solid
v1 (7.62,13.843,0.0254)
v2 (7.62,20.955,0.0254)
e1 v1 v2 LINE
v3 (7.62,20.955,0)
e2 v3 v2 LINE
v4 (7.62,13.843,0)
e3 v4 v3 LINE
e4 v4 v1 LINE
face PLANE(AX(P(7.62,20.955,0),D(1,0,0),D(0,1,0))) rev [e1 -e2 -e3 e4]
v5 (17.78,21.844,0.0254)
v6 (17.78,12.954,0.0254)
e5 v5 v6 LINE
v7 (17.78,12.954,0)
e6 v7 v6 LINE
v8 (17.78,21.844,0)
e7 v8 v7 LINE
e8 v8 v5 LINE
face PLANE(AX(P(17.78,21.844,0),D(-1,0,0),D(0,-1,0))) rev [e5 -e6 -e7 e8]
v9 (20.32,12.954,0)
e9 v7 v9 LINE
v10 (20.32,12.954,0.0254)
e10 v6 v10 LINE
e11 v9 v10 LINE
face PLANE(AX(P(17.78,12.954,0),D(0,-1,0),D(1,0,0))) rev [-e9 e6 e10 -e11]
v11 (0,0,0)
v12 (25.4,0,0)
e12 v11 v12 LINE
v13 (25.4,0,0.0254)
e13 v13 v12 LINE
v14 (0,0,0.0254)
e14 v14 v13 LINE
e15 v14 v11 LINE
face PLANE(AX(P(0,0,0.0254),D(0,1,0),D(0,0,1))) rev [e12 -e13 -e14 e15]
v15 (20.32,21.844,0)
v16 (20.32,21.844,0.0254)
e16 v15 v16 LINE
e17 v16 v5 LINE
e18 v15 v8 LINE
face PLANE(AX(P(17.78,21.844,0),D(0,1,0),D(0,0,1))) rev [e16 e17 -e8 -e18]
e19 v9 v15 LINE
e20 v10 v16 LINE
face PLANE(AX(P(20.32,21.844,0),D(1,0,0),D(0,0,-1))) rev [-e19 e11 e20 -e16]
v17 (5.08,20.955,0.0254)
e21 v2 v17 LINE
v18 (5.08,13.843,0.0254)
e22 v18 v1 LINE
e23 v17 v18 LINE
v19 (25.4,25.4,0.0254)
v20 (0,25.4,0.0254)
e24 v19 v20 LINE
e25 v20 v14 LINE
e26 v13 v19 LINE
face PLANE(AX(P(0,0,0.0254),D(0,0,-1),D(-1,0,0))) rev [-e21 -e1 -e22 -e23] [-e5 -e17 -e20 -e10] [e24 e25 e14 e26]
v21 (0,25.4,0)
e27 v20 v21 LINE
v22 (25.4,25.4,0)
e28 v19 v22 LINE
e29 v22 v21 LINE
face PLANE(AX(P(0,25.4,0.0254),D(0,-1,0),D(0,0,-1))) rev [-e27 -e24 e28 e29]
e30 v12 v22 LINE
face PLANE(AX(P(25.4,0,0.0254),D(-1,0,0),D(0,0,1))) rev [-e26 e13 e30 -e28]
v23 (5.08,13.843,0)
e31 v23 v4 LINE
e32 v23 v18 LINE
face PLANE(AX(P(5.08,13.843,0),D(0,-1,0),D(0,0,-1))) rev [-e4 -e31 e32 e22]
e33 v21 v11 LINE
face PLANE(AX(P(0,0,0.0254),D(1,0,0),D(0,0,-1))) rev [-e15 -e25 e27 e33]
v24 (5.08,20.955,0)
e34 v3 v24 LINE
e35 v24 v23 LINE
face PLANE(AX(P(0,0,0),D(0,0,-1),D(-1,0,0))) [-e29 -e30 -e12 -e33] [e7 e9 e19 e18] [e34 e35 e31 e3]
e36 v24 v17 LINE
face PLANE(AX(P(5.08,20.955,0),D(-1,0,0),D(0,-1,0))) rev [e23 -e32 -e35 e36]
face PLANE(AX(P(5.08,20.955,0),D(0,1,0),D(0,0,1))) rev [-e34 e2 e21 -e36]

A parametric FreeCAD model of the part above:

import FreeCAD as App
import Part
import Sketcher
from FreeCAD import Vector
Q = App.Units.Quantity

doc = App.newDocument("Part")
body = doc.addObject("PartDesign::Body", "Body")

sketch1 = body.newObject("Sketcher::SketchObject", "Sketch")
sketch1.AttachmentSupport = (doc.getObject("XY_Plane"), [""])
sketch1.MapMode = "FlatFace"
sketch1.addGeometry(Part.LineSegment(Vector(0, 25.4, 0), Vector(0, 0, 0)), False)
sketch1.addGeometry(Part.LineSegment(Vector(0, 0, 0), Vector(25.4, 0, 0)), False)
sketch1.addGeometry(Part.LineSegment(Vector(25.4, 0, 0), Vector(25.4, 25.4, 0)), False)
sketch1.addGeometry(Part.LineSegment(Vector(25.4, 25.4, 0), Vector(0, 25.4, 0)), False)
sketch1.addConstraint(Sketcher.Constraint("Coincident", 0, 2, 1, 1))
sketch1.addConstraint(Sketcher.Constraint("Coincident", 1, 2, 2, 1))
sketch1.addConstraint(Sketcher.Constraint("Coincident", 2, 2, 3, 1))
sketch1.addConstraint(Sketcher.Constraint("Coincident", 3, 2, 0, 1))
sketch1.addConstraint(Sketcher.Constraint("Vertical", 0))
sketch1.addConstraint(Sketcher.Constraint("Horizontal", 1))
sketch1.addConstraint(Sketcher.Constraint("Vertical", 2))
sketch1.addConstraint(Sketcher.Constraint("Horizontal", 3))
sketch1.addConstraint(Sketcher.Constraint("Coincident", 0, 2, -1, 1))
sketch1.addConstraint(Sketcher.Constraint("Equal", 3, 0))
sketch1.addConstraint(Sketcher.Constraint("DistanceX", 1, 1, 1, 2, Q("1 in")))
pad1 = body.newObject("PartDesign::Pad", "Pad")
pad1.Profile = sketch1
pad1.Length = Q("0.001 in")

sketch2 = body.newObject("Sketcher::SketchObject", "Sketch001")
sketch2.AttachmentSupport = (doc.getObject("XY_Plane"), [""])
sketch2.MapMode = "FlatFace"
sketch2.AttachmentOffset = App.Placement(Vector(0, 0, 0.001 * 25.4), App.Rotation())
sketch2.addGeometry(Part.LineSegment(Vector(5.08, 20.955, 0), Vector(5.08, 13.843, 0)), False)
sketch2.addGeometry(Part.LineSegment(Vector(5.08, 13.843, 0), Vector(7.62, 13.843, 0)), False)
sketch2.addGeometry(Part.LineSegment(Vector(7.62, 13.843, 0), Vector(7.62, 20.955, 0)), False)
sketch2.addGeometry(Part.LineSegment(Vector(7.62, 20.955, 0), Vector(5.08, 20.955, 0)), False)
sketch2.addGeometry(Part.LineSegment(Vector(17.78, 21.844, 0), Vector(17.78, 12.954, 0)), False)
sketch2.addGeometry(Part.LineSegment(Vector(17.78, 12.954, 0), Vector(20.32, 12.954, 0)), False)
sketch2.addGeometry(Part.LineSegment(Vector(20.32, 12.954, 0), Vector(20.32, 21.844, 0)), False)
sketch2.addGeometry(Part.LineSegment(Vector(20.32, 21.844, 0), Vector(17.78, 21.844, 0)), False)
sketch2.addConstraint(Sketcher.Constraint("Coincident", 0, 2, 1, 1))
sketch2.addConstraint(Sketcher.Constraint("Coincident", 1, 2, 2, 1))
sketch2.addConstraint(Sketcher.Constraint("Coincident", 2, 2, 3, 1))
sketch2.addConstraint(Sketcher.Constraint("Coincident", 3, 2, 0, 1))
sketch2.addConstraint(Sketcher.Constraint("Coincident", 4, 2, 5, 1))
sketch2.addConstraint(Sketcher.Constraint("Coincident", 5, 2, 6, 1))
sketch2.addConstraint(Sketcher.Constraint("Coincident", 6, 2, 7, 1))
sketch2.addConstraint(Sketcher.Constraint("Coincident", 7, 2, 4, 1))
sketch2.addConstraint(Sketcher.Constraint("Vertical", 0))
sketch2.addConstraint(Sketcher.Constraint("Horizontal", 1))
sketch2.addConstraint(Sketcher.Constraint("Vertical", 2))
sketch2.addConstraint(Sketcher.Constraint("Horizontal", 3))
sketch2.addConstraint(Sketcher.Constraint("Vertical", 4))
sketch2.addConstraint(Sketcher.Constraint("Horizontal", 5))
sketch2.addConstraint(Sketcher.Constraint("Vertical", 6))
sketch2.addConstraint(Sketcher.Constraint("Horizontal", 7))
sketch2.addConstraint(Sketcher.Constraint("Equal", 3, 5))
sketch2.addConstraint(Sketcher.Constraint("DistanceX", 1, 1, 1, 2, Q("0.1 in")))
sketch2.addConstraint(Sketcher.Constraint("DistanceY", 0, 2, 0, 1, Q("0.28 in")))
sketch2.addConstraint(Sketcher.Constraint("DistanceY", 4, 2, 4, 1, Q("0.35 in")))
sketch2.addConstraint(Sketcher.Constraint("DistanceX", -1, 1, 0, 2, Q("0.2 in")))
sketch2.addConstraint(Sketcher.Constraint("DistanceX", -1, 1, 4, 2, Q("0.7 in")))
sketch2.addConstraint(Sketcher.Constraint("DistanceY", -1, 1, 4, 2, Q("0.51 in")))
sketch2.addConstraint(Sketcher.Constraint("DistanceY", -1, 1, 0, 2, Q("0.545 in")))
pocket1 = body.newObject("PartDesign::Pocket", "Pocket")
pocket1.Profile = sketch2
pocket1.Type = "ThroughAll"

doc.recompute()
